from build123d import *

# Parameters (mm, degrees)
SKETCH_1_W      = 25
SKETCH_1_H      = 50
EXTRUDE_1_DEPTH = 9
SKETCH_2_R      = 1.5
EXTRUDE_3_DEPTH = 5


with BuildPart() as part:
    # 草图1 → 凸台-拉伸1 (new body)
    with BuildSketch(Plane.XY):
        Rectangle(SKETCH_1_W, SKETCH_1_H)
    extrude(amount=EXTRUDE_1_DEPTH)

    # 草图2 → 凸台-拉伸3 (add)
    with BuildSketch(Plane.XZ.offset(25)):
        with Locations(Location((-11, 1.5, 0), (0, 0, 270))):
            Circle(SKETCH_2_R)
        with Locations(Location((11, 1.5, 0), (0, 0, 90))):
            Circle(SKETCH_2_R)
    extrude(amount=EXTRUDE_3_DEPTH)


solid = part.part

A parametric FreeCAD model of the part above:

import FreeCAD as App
import Part
import Sketcher
from FreeCAD import Vector

doc = App.newDocument("Part")
body = doc.addObject("PartDesign::Body", "Body")

# Sketch on XY plane
sketch1 = body.newObject("Sketcher::SketchObject", "Sketch")
sketch1.AttachmentSupport = (doc.getObject("XY_Plane"), [""])
sketch1.MapMode = "FlatFace"
sketch1.addGeometry(Part.LineSegment(Vector(-12.5, 25, 0), Vector(-12.5, -25, 0)), False)
sketch1.addGeometry(Part.LineSegment(Vector(-12.5, -25, 0), Vector(12.5, -25, 0)), False)
sketch1.addGeometry(Part.LineSegment(Vector(12.5, -25, 0), Vector(12.5, 25, 0)), False)
sketch1.addGeometry(Part.LineSegment(Vector(12.5, 25, 0), Vector(-12.5, 25, 0)), False)
sketch1.addConstraint(Sketcher.Constraint("Coincident", 0, 2, 1, 1))
sketch1.addConstraint(Sketcher.Constraint("Coincident", 1, 2, 2, 1))
sketch1.addConstraint(Sketcher.Constraint("Coincident", 2, 2, 3, 1))
sketch1.addConstraint(Sketcher.Constraint("Coincident", 3, 2, 0, 1))
sketch1.addConstraint(Sketcher.Constraint("Vertical", 0))
sketch1.addConstraint(Sketcher.Constraint("Horizontal", 1))
sketch1.addConstraint(Sketcher.Constraint("Vertical", 2))
sketch1.addConstraint(Sketcher.Constraint("Horizontal", 3))
sketch1.addConstraint(Sketcher.Constraint("Symmetric", 0, 2, 2, 2, -1, 1))
sketch1.addConstraint(Sketcher.Constraint("DistanceX", 1, 1, 1, 2, 25.0))
sketch1.addConstraint(Sketcher.Constraint("DistanceY", 0, 2, 0, 1, 50.0))
pad1 = body.newObject("PartDesign::Pad", "Pad")
pad1.Profile = sketch1
pad1.Length = 9

# Sketch on XZ plane
sketch2 = body.newObject("Sketcher::SketchObject", "Sketch001")
sketch2.AttachmentSupport = (doc.getObject("XZ_Plane"), [""])
sketch2.MapMode = "FlatFace"
sketch2.AttachmentOffset = App.Placement(Vector(0, 0, 25), App.Rotation())
sketch2.addGeometry(Part.Circle(Vector(-11, 1.5, 0), Vector(0, 0, 1), 1.5), False)
sketch2.addGeometry(Part.Circle(Vector(11, 1.5, 0), Vector(0, 0, 1), 1.5), False)
sketch2.addConstraint(Sketcher.Constraint("Equal", 0, 1))
sketch2.addConstraint(Sketcher.Constraint("Symmetric", 0, 3, 1, 3, -2))
sketch2.addConstraint(Sketcher.Constraint("Diameter", 0, 3.0))
sketch2.addConstraint(Sketcher.Constraint("DistanceX", 0, 3, -1, 1, 11.0))
sketch2.addConstraint(Sketcher.Constraint("DistanceY", -1, 1, 0, 3, 1.5))
pad2 = body.newObject("PartDesign::Pad", "Pad001")
pad2.Profile = sketch2
pad2.Length = 5

doc.recompute()
